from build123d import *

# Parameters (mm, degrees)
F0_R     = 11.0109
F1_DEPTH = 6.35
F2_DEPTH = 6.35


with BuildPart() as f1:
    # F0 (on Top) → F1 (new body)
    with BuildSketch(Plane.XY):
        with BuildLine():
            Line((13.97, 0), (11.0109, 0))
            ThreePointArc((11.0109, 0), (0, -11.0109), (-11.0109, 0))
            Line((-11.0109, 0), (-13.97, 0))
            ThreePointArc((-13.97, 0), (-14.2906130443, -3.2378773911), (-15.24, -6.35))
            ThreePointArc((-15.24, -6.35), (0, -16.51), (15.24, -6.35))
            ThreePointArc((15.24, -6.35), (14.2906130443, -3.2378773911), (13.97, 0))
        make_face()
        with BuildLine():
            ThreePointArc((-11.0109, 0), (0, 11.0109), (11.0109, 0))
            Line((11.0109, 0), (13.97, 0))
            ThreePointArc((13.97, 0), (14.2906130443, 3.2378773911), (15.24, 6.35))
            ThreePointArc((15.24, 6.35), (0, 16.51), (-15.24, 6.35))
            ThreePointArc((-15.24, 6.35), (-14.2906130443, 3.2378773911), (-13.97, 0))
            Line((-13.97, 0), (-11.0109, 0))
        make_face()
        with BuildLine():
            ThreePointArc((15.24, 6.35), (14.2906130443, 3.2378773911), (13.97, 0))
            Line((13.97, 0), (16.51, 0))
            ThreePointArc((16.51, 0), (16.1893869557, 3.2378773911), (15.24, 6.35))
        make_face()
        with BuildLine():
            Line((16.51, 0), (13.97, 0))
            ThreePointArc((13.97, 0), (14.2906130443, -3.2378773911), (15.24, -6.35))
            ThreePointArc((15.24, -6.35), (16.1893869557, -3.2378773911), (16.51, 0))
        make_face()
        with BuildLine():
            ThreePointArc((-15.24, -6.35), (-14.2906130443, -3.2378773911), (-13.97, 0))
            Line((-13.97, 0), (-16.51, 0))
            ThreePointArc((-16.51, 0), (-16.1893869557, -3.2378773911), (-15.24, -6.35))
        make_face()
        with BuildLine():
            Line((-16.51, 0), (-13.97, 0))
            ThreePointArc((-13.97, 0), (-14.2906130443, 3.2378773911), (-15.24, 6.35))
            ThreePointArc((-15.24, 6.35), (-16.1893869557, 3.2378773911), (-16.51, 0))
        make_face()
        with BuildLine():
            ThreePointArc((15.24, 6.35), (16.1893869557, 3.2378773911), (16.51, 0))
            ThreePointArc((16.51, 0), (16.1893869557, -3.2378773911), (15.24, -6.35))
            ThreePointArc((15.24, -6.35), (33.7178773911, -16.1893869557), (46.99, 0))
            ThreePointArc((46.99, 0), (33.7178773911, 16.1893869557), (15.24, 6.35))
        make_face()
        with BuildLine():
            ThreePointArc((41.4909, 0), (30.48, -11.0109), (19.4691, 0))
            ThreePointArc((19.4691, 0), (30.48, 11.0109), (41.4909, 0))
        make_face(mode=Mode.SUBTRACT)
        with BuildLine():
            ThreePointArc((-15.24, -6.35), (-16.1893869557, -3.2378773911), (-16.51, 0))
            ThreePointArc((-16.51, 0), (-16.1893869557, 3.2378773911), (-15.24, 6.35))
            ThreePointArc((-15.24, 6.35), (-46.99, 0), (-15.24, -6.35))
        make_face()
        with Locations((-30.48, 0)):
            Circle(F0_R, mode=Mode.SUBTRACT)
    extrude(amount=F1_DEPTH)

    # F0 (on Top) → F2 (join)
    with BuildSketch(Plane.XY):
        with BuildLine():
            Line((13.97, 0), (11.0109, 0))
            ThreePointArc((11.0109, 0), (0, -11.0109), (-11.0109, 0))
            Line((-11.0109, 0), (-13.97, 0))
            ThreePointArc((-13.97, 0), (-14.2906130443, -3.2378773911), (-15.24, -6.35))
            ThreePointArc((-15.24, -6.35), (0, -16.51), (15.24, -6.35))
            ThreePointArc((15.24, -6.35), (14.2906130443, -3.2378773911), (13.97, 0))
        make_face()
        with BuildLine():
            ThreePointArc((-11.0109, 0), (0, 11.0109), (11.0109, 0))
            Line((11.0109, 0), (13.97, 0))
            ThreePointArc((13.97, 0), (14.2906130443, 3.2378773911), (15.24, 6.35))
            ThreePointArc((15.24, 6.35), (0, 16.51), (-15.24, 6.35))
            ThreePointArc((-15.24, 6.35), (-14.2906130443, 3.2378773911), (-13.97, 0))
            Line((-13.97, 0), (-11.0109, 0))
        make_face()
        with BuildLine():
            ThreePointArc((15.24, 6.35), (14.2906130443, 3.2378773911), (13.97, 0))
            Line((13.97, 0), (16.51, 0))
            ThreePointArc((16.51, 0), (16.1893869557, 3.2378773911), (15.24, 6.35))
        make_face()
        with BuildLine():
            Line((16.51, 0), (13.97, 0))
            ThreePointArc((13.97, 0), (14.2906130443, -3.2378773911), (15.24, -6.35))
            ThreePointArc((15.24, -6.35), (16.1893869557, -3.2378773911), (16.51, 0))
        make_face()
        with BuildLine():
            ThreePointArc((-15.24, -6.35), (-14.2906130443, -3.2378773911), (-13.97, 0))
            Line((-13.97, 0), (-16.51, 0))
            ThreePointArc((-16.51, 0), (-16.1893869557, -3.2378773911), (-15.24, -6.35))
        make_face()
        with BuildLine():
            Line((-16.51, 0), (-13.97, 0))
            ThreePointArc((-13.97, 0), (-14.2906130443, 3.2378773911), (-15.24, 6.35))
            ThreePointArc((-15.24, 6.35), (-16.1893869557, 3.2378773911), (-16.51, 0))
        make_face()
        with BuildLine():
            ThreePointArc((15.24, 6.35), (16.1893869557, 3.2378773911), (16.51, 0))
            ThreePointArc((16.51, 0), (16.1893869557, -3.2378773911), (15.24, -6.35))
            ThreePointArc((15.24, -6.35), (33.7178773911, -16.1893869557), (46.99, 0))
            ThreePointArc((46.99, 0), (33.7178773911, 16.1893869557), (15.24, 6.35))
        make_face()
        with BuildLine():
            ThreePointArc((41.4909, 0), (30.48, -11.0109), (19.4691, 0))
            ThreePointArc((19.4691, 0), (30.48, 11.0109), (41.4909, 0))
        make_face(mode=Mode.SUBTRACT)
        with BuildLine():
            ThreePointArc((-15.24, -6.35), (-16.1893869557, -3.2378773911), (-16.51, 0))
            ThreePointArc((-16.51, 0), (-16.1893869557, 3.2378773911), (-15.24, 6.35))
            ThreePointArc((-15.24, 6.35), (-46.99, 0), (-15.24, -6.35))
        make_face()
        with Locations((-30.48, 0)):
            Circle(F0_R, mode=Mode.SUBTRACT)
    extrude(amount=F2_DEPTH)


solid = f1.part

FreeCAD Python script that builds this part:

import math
import FreeCAD as App
import Part
import Sketcher

V = App.Vector
Q = App.Units.Quantity

doc = App.newDocument("Part")
body = doc.addObject("PartDesign::Body", "Body")

sketch1 = doc.addObject("Sketcher::SketchObject", "Sketch")
body.addObject(sketch1)
sketch1.AttachmentSupport = (doc.XY_Plane, [""])
sketch1.MapMode = "FlatFace"
sketch1.addGeometry(Part.ArcOfCircle(Part.Circle(V(0, 0, 0), V(0, 0, 1), 16.51), math.radians(-157.380135), math.radians(-22.619865)), False)
sketch1.addGeometry(Part.ArcOfCircle(Part.Circle(V(30.48, 0, 0), V(0, 0, 1), 16.51), math.radians(-157.380135), math.radians(0)), False)
sketch1.addGeometry(Part.ArcOfCircle(Part.Circle(V(30.48, 0, 0), V(0, 0, 1), 16.51), math.radians(0), math.radians(157.380135)), False)
sketch1.addGeometry(Part.ArcOfCircle(Part.Circle(V(0, 0, 0), V(0, 0, 1), 16.51), math.radians(22.619865), math.radians(157.380135)), False)
sketch1.addGeometry(Part.ArcOfCircle(Part.Circle(V(-30.48, 0, 0), V(0, 0, 1), 16.51), math.radians(22.619865), math.radians(337.380135)), False)
sketch1.addGeometry(Part.Circle(V(-30.48, 0, 0), V(0, 0, 1), 11.0109), False)
sketch1.addGeometry(Part.Circle(V(0, 0, 0), V(0, 0, 1), 11.0109), False)
sketch1.addGeometry(Part.Circle(V(30.48, 0, 0), V(0, 0, 1), 11.0109), False)
sketch1.addConstraint(Sketcher.Constraint("Coincident", 0, 2, 1, 1))
sketch1.addConstraint(Sketcher.Constraint("Tangent", 1, 2, 2, 1))
sketch1.addConstraint(Sketcher.Constraint("Coincident", 2, 2, 3, 1))
sketch1.addConstraint(Sketcher.Constraint("Coincident", 3, 2, 4, 1))
sketch1.addConstraint(Sketcher.Constraint("Coincident", 4, 2, 0, 1))
sketch1.addConstraint(Sketcher.Constraint("Coincident", 0, 3, -1, 1))
sketch1.addConstraint(Sketcher.Constraint("Coincident", 3, 3, -1, 1))
sketch1.addConstraint(Sketcher.Constraint("Coincident", 6, 3, -1, 1))
sketch1.addConstraint(Sketcher.Constraint("Coincident", 5, 3, 4, 3))
sketch1.addConstraint(Sketcher.Constraint("Coincident", 7, 3, 1, 3))
sketch1.addConstraint(Sketcher.Constraint("Equal", 0, 1))
sketch1.addConstraint(Sketcher.Constraint("Equal", 1, 2))
sketch1.addConstraint(Sketcher.Constraint("Equal", 2, 3))
sketch1.addConstraint(Sketcher.Constraint("Equal", 3, 4))
sketch1.addConstraint(Sketcher.Constraint("Equal", 5, 6))
sketch1.addConstraint(Sketcher.Constraint("Equal", 6, 7))
sketch1.addConstraint(Sketcher.Constraint("Symmetric", 1, 3, 4, 3, -1, 1))
sketch1.addConstraint(Sketcher.Constraint("PointOnObject", 1, 3, -1))
sketch1.addConstraint(Sketcher.Constraint("PointOnObject", 1, 2, -1))
sketch1.addConstraint(Sketcher.Constraint("Radius", 0, Q("0.65 in")))
sketch1.addConstraint(Sketcher.Constraint("Diameter", 5, Q("0.867 in")))
sketch1.addConstraint(Sketcher.Constraint("DistanceX", -1, 1, 1, 3, Q("1.2 in")))
pad1 = doc.addObject("PartDesign::Pad", "Pad")
body.addObject(pad1)
pad1.Profile = sketch1
pad1.Length = Q("0.25 in")

sketch2 = doc.addObject("Sketcher::SketchObject", "Sketch001")
body.addObject(sketch2)
sketch2.AttachmentSupport = (doc.XY_Plane, [""])
sketch2.MapMode = "FlatFace"
sketch2.addGeometry(Part.ArcOfCircle(Part.Circle(V(0, 0, 0), V(0, 0, 1), 16.51), math.radians(-157.380135), math.radians(-22.619865)), False)
sketch2.addGeometry(Part.ArcOfCircle(Part.Circle(V(30.48, 0, 0), V(0, 0, 1), 16.51), math.radians(-157.380135), math.radians(0)), False)
sketch2.addGeometry(Part.ArcOfCircle(Part.Circle(V(30.48, 0, 0), V(0, 0, 1), 16.51), math.radians(0), math.radians(157.380135)), False)
sketch2.addGeometry(Part.ArcOfCircle(Part.Circle(V(0, 0, 0), V(0, 0, 1), 16.51), math.radians(22.619865), math.radians(157.380135)), False)
sketch2.addGeometry(Part.ArcOfCircle(Part.Circle(V(-30.48, 0, 0), V(0, 0, 1), 16.51), math.radians(22.619865), math.radians(337.380135)), False)
sketch2.addGeometry(Part.Circle(V(-30.48, 0, 0), V(0, 0, 1), 11.0109), False)
sketch2.addGeometry(Part.Circle(V(0, 0, 0), V(0, 0, 1), 11.0109), False)
sketch2.addGeometry(Part.Circle(V(30.48, 0, 0), V(0, 0, 1), 11.0109), False)
sketch2.addConstraint(Sketcher.Constraint("Coincident", 0, 2, 1, 1))
sketch2.addConstraint(Sketcher.Constraint("Tangent", 1, 2, 2, 1))
sketch2.addConstraint(Sketcher.Constraint("Coincident", 2, 2, 3, 1))
sketch2.addConstraint(Sketcher.Constraint("Coincident", 3, 2, 4, 1))
sketch2.addConstraint(Sketcher.Constraint("Coincident", 4, 2, 0, 1))
sketch2.addConstraint(Sketcher.Constraint("Coincident", 0, 3, -1, 1))
sketch2.addConstraint(Sketcher.Constraint("Coincident", 3, 3, -1, 1))
sketch2.addConstraint(Sketcher.Constraint("Coincident", 6, 3, -1, 1))
sketch2.addConstraint(Sketcher.Constraint("Coincident", 5, 3, 4, 3))
sketch2.addConstraint(Sketcher.Constraint("Coincident", 7, 3, 1, 3))
sketch2.addConstraint(Sketcher.Constraint("Equal", 0, 1))
sketch2.addConstraint(Sketcher.Constraint("Equal", 1, 2))
sketch2.addConstraint(Sketcher.Constraint("Equal", 2, 3))
sketch2.addConstraint(Sketcher.Constraint("Equal", 3, 4))
sketch2.addConstraint(Sketcher.Constraint("Equal", 5, 6))
sketch2.addConstraint(Sketcher.Constraint("Equal", 6, 7))
sketch2.addConstraint(Sketcher.Constraint("Symmetric", 1, 3, 4, 3, -1, 1))
sketch2.addConstraint(Sketcher.Constraint("PointOnObject", 1, 3, -1))
sketch2.addConstraint(Sketcher.Constraint("PointOnObject", 1, 2, -1))
sketch2.addConstraint(Sketcher.Constraint("Radius", 0, Q("0.65 in")))
sketch2.addConstraint(Sketcher.Constraint("Diameter", 5, Q("0.867 in")))
sketch2.addConstraint(Sketcher.Constraint("DistanceX", -1, 1, 1, 3, Q("1.2 in")))
pad2 = doc.addObject("PartDesign::Pad", "Pad001")
body.addObject(pad2)
pad2.Profile = sketch2
pad2.Length = Q("0.25 in")

doc.recompute()
